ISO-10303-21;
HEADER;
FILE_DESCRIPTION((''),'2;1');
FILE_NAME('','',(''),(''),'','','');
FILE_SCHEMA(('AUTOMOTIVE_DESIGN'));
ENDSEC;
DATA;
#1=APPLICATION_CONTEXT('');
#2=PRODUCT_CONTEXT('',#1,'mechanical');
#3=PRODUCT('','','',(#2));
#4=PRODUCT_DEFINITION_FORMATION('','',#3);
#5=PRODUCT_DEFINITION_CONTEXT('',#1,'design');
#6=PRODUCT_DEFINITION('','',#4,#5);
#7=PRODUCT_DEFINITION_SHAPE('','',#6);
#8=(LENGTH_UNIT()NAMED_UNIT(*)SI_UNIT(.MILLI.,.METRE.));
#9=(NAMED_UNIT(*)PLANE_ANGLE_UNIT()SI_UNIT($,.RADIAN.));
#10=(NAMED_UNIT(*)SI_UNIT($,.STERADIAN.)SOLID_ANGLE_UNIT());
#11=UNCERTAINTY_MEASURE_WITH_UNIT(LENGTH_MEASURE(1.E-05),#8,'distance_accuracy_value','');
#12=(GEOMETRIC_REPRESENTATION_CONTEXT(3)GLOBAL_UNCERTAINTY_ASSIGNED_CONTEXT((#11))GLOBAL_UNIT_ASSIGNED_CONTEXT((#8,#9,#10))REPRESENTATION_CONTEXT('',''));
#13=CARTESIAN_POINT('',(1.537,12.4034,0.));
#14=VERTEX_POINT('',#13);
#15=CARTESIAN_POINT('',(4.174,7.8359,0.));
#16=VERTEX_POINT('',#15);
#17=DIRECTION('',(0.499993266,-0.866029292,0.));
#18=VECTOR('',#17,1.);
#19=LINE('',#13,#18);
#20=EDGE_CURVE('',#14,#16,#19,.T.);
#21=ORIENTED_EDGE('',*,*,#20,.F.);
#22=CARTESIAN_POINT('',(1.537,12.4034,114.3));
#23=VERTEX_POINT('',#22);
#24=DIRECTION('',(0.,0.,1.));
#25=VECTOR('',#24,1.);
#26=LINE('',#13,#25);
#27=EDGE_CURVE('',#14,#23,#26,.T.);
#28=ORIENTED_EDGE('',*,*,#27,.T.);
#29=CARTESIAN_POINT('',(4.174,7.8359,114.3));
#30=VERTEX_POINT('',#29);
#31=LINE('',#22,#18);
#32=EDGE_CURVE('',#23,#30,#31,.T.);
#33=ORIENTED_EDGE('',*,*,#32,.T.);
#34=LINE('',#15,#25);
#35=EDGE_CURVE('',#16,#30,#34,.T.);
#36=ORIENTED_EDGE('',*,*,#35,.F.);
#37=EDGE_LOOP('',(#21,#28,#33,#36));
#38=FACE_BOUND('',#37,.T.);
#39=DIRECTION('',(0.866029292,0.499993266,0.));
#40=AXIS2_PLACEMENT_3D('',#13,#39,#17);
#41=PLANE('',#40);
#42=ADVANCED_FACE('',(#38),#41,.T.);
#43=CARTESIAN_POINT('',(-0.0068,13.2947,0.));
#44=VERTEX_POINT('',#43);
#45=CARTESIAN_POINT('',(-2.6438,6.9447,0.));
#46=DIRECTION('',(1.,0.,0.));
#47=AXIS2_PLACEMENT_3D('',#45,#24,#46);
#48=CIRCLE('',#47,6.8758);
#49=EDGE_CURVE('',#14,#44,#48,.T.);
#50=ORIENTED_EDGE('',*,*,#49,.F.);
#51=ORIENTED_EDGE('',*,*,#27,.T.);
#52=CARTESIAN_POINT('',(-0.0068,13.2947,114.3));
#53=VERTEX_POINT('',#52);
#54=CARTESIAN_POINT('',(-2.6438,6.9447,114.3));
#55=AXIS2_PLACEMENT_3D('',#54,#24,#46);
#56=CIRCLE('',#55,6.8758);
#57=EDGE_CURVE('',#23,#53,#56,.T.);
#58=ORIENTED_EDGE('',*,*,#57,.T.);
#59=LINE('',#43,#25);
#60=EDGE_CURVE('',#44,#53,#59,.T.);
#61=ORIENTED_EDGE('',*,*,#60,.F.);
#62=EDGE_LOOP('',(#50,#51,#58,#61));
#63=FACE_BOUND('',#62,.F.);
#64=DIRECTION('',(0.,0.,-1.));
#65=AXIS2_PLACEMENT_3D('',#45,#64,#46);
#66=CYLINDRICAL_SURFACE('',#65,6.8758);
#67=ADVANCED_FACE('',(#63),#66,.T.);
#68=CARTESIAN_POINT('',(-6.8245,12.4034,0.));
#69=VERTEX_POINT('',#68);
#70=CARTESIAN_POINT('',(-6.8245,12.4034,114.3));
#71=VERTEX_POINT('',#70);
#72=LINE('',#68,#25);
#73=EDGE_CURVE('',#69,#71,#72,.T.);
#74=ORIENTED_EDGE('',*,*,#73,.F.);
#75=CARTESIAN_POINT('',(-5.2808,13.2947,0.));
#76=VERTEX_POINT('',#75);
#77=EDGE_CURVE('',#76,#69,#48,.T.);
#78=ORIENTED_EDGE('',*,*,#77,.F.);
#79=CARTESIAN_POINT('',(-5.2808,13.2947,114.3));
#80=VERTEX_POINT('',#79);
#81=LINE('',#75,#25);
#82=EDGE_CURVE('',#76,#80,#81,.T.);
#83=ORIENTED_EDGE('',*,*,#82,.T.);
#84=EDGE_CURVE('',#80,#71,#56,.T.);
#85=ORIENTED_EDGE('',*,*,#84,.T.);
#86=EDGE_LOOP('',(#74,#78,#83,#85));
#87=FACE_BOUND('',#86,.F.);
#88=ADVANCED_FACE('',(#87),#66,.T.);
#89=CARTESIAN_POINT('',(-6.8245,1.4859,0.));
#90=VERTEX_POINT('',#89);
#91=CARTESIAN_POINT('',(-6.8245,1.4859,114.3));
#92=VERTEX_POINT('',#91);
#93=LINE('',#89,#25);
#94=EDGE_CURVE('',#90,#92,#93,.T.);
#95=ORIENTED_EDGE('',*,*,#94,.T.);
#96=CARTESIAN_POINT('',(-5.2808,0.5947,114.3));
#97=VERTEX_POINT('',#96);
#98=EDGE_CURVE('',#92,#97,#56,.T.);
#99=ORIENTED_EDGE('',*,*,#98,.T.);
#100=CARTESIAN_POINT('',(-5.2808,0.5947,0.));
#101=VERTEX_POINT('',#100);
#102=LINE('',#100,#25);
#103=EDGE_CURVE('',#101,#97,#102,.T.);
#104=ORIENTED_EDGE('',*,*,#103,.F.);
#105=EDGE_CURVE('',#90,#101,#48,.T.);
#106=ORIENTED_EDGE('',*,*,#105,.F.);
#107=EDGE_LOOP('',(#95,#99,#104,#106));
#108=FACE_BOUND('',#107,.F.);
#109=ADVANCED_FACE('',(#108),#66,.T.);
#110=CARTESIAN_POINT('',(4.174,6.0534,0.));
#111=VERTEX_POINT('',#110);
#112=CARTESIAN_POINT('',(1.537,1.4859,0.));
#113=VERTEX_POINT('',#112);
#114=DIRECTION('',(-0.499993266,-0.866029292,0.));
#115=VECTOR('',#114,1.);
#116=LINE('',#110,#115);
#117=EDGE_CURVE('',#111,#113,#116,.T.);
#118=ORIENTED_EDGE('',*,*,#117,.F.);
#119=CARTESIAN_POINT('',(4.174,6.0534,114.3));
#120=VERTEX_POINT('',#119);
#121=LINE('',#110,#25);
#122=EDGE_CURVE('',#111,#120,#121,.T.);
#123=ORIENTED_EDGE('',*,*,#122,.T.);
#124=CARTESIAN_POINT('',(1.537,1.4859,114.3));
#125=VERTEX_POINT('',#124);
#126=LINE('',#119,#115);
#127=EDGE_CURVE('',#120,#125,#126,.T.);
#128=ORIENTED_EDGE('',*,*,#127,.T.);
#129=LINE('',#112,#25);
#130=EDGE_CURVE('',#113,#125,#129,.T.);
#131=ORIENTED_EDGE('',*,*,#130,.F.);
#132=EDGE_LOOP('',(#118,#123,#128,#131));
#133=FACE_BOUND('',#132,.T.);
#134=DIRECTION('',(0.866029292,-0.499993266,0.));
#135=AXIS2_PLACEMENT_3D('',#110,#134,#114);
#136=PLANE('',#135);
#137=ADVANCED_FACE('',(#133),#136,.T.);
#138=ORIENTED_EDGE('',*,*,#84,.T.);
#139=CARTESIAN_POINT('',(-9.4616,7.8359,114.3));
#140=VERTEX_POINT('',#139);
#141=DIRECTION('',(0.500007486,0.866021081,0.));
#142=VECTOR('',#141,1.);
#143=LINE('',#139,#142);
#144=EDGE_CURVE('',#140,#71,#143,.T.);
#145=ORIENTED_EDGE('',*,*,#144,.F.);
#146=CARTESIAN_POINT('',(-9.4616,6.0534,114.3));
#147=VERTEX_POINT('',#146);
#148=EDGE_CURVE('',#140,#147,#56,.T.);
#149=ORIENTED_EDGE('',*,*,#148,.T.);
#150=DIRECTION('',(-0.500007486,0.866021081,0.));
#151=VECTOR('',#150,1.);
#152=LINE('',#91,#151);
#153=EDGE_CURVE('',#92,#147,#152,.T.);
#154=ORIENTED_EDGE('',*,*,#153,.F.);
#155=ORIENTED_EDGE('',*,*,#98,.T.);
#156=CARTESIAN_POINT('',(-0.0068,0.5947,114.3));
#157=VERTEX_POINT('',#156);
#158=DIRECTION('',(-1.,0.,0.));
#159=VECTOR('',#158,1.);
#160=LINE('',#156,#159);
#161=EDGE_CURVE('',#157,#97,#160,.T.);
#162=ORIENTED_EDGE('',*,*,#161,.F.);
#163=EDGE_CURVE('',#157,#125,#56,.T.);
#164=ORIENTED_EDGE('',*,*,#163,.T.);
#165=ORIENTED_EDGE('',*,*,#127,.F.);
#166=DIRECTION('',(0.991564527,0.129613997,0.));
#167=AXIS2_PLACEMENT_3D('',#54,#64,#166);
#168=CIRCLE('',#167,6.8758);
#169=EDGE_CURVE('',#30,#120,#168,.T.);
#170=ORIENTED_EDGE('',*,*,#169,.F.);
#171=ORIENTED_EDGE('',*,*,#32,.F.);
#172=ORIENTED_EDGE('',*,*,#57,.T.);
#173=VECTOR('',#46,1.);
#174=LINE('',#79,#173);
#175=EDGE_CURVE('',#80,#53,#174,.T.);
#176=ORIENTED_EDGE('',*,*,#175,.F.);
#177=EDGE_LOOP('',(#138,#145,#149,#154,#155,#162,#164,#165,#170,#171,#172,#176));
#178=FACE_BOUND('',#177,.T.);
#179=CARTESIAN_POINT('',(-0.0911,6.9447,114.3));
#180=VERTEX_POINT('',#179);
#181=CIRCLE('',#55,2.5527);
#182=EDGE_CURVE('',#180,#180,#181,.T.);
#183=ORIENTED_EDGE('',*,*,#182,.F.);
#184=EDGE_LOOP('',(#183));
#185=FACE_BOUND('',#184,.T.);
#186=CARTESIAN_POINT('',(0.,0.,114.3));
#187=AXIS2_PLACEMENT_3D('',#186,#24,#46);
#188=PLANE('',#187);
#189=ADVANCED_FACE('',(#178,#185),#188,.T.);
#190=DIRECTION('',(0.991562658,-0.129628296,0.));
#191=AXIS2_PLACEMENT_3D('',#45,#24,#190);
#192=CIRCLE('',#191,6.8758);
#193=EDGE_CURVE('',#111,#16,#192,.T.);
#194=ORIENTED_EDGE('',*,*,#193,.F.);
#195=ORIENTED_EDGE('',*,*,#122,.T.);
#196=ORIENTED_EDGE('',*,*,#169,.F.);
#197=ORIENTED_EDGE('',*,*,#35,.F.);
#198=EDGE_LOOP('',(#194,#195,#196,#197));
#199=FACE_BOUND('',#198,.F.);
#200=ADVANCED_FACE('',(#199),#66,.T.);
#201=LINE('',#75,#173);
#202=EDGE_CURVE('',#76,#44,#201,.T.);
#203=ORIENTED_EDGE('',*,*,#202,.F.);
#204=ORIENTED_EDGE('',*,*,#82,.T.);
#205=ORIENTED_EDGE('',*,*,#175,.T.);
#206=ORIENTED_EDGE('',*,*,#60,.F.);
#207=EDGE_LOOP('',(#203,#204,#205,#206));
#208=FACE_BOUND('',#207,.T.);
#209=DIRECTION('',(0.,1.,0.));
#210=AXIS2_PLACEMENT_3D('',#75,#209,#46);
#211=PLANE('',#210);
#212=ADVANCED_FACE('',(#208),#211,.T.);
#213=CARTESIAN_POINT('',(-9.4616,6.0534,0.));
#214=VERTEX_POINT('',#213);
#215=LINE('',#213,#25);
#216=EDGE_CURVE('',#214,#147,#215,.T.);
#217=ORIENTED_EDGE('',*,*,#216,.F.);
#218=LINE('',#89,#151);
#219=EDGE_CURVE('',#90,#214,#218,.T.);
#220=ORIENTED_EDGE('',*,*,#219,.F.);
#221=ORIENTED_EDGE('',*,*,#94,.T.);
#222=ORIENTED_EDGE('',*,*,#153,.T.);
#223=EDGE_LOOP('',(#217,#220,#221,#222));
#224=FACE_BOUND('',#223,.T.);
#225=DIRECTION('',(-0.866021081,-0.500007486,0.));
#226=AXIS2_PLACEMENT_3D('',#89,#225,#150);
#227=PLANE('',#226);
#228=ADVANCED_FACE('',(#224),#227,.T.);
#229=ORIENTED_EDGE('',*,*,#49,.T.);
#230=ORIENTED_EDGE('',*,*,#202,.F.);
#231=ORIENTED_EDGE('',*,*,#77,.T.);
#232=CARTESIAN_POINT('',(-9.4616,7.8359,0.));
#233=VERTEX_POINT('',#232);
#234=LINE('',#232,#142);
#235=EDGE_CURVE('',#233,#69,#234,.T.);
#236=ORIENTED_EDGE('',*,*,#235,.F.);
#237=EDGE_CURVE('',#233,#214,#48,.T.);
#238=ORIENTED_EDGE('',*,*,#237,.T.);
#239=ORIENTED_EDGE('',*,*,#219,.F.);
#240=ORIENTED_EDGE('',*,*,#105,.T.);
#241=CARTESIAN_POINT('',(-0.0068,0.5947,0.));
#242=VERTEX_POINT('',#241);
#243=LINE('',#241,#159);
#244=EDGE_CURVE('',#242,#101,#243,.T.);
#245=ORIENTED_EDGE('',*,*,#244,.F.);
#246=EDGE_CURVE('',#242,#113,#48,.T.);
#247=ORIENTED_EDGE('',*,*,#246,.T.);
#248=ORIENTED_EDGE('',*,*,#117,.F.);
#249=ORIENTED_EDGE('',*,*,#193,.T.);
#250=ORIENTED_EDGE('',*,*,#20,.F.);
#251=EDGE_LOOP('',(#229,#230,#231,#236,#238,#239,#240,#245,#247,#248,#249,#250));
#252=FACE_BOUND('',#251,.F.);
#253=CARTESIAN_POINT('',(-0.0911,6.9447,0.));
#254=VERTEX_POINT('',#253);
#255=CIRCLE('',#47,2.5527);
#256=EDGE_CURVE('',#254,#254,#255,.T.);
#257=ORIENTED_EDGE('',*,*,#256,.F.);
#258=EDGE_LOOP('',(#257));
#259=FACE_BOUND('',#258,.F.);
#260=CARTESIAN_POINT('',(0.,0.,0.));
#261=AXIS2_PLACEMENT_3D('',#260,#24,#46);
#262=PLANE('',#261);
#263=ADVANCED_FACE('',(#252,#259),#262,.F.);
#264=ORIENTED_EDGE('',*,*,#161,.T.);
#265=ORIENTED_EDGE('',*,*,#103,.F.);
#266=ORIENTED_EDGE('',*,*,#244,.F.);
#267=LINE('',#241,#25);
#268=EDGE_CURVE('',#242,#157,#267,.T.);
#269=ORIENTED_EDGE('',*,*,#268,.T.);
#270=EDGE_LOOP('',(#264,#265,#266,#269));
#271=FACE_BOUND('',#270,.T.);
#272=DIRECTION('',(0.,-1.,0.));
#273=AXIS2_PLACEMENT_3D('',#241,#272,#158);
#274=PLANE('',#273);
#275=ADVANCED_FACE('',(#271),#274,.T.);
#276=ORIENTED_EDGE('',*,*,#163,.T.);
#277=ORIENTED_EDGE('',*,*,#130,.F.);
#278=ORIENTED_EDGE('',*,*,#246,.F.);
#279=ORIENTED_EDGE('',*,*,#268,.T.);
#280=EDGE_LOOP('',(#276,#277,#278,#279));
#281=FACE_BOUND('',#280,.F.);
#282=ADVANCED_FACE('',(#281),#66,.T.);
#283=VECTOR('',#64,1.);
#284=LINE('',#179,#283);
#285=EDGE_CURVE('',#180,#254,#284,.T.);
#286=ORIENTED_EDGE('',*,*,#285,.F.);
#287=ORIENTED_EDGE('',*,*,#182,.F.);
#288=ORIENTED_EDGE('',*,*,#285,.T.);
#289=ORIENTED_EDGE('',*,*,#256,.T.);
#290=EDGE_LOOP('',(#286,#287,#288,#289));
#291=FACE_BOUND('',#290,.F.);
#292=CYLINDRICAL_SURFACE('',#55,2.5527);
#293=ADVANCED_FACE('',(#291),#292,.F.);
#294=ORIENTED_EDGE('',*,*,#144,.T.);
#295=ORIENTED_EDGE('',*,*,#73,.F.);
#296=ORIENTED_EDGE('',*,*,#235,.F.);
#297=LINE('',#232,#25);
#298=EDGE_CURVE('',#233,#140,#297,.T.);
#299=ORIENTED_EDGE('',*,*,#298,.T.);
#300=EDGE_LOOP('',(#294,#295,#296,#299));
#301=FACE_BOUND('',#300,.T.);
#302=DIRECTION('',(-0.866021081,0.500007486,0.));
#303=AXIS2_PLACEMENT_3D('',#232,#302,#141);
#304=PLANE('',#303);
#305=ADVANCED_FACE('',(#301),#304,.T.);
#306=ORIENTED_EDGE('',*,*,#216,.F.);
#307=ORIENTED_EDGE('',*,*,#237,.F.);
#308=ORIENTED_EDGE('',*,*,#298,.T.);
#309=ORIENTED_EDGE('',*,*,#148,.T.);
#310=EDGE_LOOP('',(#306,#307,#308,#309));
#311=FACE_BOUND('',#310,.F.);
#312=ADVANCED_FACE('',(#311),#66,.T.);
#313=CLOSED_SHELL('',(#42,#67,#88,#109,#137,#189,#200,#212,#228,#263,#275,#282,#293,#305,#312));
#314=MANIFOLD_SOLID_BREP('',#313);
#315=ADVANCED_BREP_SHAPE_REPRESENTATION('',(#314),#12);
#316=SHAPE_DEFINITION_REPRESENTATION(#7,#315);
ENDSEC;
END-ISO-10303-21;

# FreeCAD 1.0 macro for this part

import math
import FreeCAD as App
import Part
import Sketcher

V = App.Vector
Q = App.Units.Quantity

doc = App.newDocument("Part")
params = doc.addObject("Spreadsheet::Sheet", "Params")
for row, (alias, value) in enumerate([
    ("pad1_length", "4.5 in"),
    ("sketch2_diameter", "0.201 in"),
    ("pocket1_length", "4.5 in"),
], start=1):
    params.set(f"A{row}", alias)
    params.set(f"B{row}", "=" + value)
    params.setAlias(f"B{row}", alias)

body = doc.addObject("PartDesign::Body", "Body")

# Sketch on XY plane
sketch1 = body.newObject("Sketcher::SketchObject", "Sketch")
sketch1.AttachmentSupport = (doc.getObject("XY_Plane"), [""])
sketch1.MapMode = "FlatFace"
sketch1.addGeometry([
    Part.ArcOfCircle(Part.Circle(V(-2.6, 6.9, 0), V(0, 0, 1), 6.9), math.radians(-7.45), math.radians(7.45)),  # 0
    Part.LineSegment(V(4.2, 7.8, 0), V(1.5, 12.4, 0)),  # 1
    Part.ArcOfCircle(Part.Circle(V(-2.6, 6.9, 0), V(0, 0, 1), 6.9), math.radians(52.55), math.radians(67.45)),  # 2
    Part.LineSegment(V(0, 13.3, 0), V(-5.3, 13.3, 0)),  # 3
    Part.ArcOfCircle(Part.Circle(V(-2.6, 6.9, 0), V(0, 0, 1), 6.9), math.radians(112.55), math.radians(127.45)),  # 4
    Part.LineSegment(V(-6.8, 12.4, 0), V(-9.5, 7.8, 0)),  # 5
    Part.ArcOfCircle(Part.Circle(V(-2.6, 6.9, 0), V(0, 0, 1), 6.9), math.radians(172.55), math.radians(187.45)),  # 6
    Part.LineSegment(V(-9.5, 6.1, 0), V(-6.8, 1.5, 0)),  # 7
    Part.ArcOfCircle(Part.Circle(V(-2.6, 6.9, 0), V(0, 0, 1), 6.9), math.radians(-127.45), math.radians(-112.55)),  # 8
    Part.LineSegment(V(-5.3, 0.6, 0), V(0, 0.6, 0)),  # 9
    Part.ArcOfCircle(Part.Circle(V(-2.6, 6.9, 0), V(0, 0, 1), 6.9), math.radians(-67.45), math.radians(-52.55)),  # 10
    Part.LineSegment(V(1.5, 1.5, 0), V(4.2, 6.1, 0)),  # 11
], False)
sketch1.addConstraint([
    Sketcher.Constraint("Coincident", 0, 2, 1, 1),
    Sketcher.Constraint("Coincident", 1, 2, 2, 1),
    Sketcher.Constraint("Coincident", 2, 2, 3, 1),
    Sketcher.Constraint("Coincident", 3, 2, 4, 1),
    Sketcher.Constraint("Coincident", 4, 2, 5, 1),
    Sketcher.Constraint("Coincident", 5, 2, 6, 1),
    Sketcher.Constraint("Coincident", 6, 2, 7, 1),
    Sketcher.Constraint("Coincident", 7, 2, 8, 1),
    Sketcher.Constraint("Coincident", 8, 2, 9, 1),
    Sketcher.Constraint("Coincident", 9, 2, 10, 1),
    Sketcher.Constraint("Coincident", 10, 2, 11, 1),
    Sketcher.Constraint("Coincident", 11, 2, 0, 1),
    Sketcher.Constraint("Horizontal", 3),
    Sketcher.Constraint("Horizontal", 9),
    Sketcher.Constraint("Coincident", 2, 3, 0, 3),
    Sketcher.Constraint("Coincident", 4, 3, 0, 3),
    Sketcher.Constraint("Coincident", 6, 3, 0, 3),
    Sketcher.Constraint("Coincident", 8, 3, 0, 3),
    Sketcher.Constraint("Coincident", 10, 3, 0, 3),
    Sketcher.Constraint("Equal", 0, 2),
    Sketcher.Constraint("Equal", 2, 4),
    Sketcher.Constraint("Equal", 4, 6),
    Sketcher.Constraint("Equal", 6, 8),
    Sketcher.Constraint("Equal", 8, 10),
    Sketcher.Constraint("Parallel", 1, 7),
    Sketcher.Constraint("Parallel", 5, 11),
    Sketcher.Constraint("Horizontal", 1, 2, 4, 2),
    Sketcher.Constraint("Horizontal", 0, 2, 5, 2),
    Sketcher.Constraint("Horizontal", 7, 2, 10, 2),
    Sketcher.Constraint("Vertical", 5, 2, 6, 2),
    Sketcher.Constraint("Vertical", 3, 2, 8, 2),
    Sketcher.Constraint("Radius", 0, Q("0.2707 in")),
    Sketcher.Constraint("Angle", 1, Q("119.9996 deg")),
    Sketcher.Constraint("DistanceY", 0, 3, 2, 2, Q("0.25 in")),
    Sketcher.Constraint("DistanceY", 10, 2, 0, 2, Q("0.25 in")),
    Sketcher.Constraint("DistanceY", -1, 1, 0, 2, Q("0.3085 in")),
    Sketcher.Constraint("DistanceX", -1, 1, 1, 2, Q("0.0605 in")),
])
pad1 = body.newObject("PartDesign::Pad", "Pad")
pad1.Profile = sketch1
pad1.setExpression("Length", "Params.pad1_length")

# Sketch on XY plane
sketch2 = body.newObject("Sketcher::SketchObject", "Sketch001")
sketch2.AttachmentSupport = (doc.getObject("XY_Plane"), [""])
sketch2.MapMode = "FlatFace"
sketch2.AttachmentOffset = App.Placement(V(0, 0, 4.5 * 25.4), App.Rotation())
sketch2.addGeometry(Part.Circle(V(-2.6, 6.9, 0), V(0, 0, 1), 2.6), False)
sketch2.addConstraint([
    Sketcher.Constraint("Diameter", 0, Q("0.201 in")),
    Sketcher.Constraint("DistanceX", 0, 3, -1, 1, 2.6438),
    Sketcher.Constraint("DistanceY", -1, 1, 0, 3, 6.9447),
])
sketch2.setExpression("Constraints[0]", "Params.sketch2_diameter")
pocket1 = body.newObject("PartDesign::Pocket", "Pocket")
pocket1.Profile = sketch2
pocket1.setExpression("Length", "Params.pocket1_length")

doc.recompute()
